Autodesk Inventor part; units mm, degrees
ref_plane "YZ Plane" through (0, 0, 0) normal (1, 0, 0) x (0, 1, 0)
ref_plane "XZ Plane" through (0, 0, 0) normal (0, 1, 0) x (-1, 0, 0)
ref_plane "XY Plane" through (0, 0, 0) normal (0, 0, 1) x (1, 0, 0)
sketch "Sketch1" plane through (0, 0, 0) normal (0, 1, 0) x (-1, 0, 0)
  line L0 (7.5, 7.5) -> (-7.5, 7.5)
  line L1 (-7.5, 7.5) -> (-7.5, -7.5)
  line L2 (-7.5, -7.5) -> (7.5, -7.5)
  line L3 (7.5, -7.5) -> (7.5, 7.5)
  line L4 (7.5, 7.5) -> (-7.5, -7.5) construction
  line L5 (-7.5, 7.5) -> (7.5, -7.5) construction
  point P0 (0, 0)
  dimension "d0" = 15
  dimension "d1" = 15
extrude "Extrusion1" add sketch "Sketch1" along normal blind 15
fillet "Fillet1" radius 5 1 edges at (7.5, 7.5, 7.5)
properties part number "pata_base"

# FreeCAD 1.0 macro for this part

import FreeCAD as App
import Part
import Sketcher

V = App.Vector
Q = App.Units.Quantity


def edges_at(feature, points):
    """Names of the edges that pass closest to the given points."""
    edges = feature.Shape.Edges
    near = lambda p: min(range(len(edges)), key=lambda i: edges[i].distToShape(Part.Vertex(*p))[0])
    return sorted({f"Edge{near(p) + 1}" for p in points})


def add_polygon(sketch, points):
    """Adds a closed chain of lines whose ends are joined by coincident constraints."""
    first, n = sketch.GeometryCount, len(points)
    for a, b in zip(points, points[1:] + points[:1]):
        sketch.addGeometry(Part.LineSegment(App.Vector(*a, 0), App.Vector(*b, 0)), False)
    for i in range(n):
        sketch.addConstraint(Sketcher.Constraint("Coincident", first + i, 2, first + (i + 1) % n, 1))

doc = App.newDocument("Part")
body = doc.addObject("PartDesign::Body", "Body")

sketch1 = body.newObject("Sketcher::SketchObject", "Sketch")
sketch1.AttachmentSupport = (doc.getObject("XZ_Plane"), [""])
sketch1.MapMode = "FlatFace"
add_polygon(sketch1, [(-7.5, -7.5), (-7.5, 7.5), (7.5, 7.5), (7.5, -7.5)])
sketch1.addConstraint([
    Sketcher.Constraint("Vertical", 0),
    Sketcher.Constraint("Horizontal", 1),
    Sketcher.Constraint("Vertical", 2),
    Sketcher.Constraint("Horizontal", 3),
    Sketcher.Constraint("Symmetric", 0, 2, 2, 2, -1, 1),
    Sketcher.Constraint("Equal", 3, 0),
    Sketcher.Constraint("DistanceX", 1, 1, 1, 2, Q("15 mm")),
])
pad1 = body.newObject("PartDesign::Pad", "Pad")
pad1.Profile = sketch1
pad1.Length = 15
pad1.Reversed = True
doc.recompute()

fillet = body.newObject("PartDesign::Fillet", "Fillet")
fillet.Base = (pad1, edges_at(pad1, [(7.5, 7.5, 7.5)]))
fillet.Radius = 5

doc.recompute()
